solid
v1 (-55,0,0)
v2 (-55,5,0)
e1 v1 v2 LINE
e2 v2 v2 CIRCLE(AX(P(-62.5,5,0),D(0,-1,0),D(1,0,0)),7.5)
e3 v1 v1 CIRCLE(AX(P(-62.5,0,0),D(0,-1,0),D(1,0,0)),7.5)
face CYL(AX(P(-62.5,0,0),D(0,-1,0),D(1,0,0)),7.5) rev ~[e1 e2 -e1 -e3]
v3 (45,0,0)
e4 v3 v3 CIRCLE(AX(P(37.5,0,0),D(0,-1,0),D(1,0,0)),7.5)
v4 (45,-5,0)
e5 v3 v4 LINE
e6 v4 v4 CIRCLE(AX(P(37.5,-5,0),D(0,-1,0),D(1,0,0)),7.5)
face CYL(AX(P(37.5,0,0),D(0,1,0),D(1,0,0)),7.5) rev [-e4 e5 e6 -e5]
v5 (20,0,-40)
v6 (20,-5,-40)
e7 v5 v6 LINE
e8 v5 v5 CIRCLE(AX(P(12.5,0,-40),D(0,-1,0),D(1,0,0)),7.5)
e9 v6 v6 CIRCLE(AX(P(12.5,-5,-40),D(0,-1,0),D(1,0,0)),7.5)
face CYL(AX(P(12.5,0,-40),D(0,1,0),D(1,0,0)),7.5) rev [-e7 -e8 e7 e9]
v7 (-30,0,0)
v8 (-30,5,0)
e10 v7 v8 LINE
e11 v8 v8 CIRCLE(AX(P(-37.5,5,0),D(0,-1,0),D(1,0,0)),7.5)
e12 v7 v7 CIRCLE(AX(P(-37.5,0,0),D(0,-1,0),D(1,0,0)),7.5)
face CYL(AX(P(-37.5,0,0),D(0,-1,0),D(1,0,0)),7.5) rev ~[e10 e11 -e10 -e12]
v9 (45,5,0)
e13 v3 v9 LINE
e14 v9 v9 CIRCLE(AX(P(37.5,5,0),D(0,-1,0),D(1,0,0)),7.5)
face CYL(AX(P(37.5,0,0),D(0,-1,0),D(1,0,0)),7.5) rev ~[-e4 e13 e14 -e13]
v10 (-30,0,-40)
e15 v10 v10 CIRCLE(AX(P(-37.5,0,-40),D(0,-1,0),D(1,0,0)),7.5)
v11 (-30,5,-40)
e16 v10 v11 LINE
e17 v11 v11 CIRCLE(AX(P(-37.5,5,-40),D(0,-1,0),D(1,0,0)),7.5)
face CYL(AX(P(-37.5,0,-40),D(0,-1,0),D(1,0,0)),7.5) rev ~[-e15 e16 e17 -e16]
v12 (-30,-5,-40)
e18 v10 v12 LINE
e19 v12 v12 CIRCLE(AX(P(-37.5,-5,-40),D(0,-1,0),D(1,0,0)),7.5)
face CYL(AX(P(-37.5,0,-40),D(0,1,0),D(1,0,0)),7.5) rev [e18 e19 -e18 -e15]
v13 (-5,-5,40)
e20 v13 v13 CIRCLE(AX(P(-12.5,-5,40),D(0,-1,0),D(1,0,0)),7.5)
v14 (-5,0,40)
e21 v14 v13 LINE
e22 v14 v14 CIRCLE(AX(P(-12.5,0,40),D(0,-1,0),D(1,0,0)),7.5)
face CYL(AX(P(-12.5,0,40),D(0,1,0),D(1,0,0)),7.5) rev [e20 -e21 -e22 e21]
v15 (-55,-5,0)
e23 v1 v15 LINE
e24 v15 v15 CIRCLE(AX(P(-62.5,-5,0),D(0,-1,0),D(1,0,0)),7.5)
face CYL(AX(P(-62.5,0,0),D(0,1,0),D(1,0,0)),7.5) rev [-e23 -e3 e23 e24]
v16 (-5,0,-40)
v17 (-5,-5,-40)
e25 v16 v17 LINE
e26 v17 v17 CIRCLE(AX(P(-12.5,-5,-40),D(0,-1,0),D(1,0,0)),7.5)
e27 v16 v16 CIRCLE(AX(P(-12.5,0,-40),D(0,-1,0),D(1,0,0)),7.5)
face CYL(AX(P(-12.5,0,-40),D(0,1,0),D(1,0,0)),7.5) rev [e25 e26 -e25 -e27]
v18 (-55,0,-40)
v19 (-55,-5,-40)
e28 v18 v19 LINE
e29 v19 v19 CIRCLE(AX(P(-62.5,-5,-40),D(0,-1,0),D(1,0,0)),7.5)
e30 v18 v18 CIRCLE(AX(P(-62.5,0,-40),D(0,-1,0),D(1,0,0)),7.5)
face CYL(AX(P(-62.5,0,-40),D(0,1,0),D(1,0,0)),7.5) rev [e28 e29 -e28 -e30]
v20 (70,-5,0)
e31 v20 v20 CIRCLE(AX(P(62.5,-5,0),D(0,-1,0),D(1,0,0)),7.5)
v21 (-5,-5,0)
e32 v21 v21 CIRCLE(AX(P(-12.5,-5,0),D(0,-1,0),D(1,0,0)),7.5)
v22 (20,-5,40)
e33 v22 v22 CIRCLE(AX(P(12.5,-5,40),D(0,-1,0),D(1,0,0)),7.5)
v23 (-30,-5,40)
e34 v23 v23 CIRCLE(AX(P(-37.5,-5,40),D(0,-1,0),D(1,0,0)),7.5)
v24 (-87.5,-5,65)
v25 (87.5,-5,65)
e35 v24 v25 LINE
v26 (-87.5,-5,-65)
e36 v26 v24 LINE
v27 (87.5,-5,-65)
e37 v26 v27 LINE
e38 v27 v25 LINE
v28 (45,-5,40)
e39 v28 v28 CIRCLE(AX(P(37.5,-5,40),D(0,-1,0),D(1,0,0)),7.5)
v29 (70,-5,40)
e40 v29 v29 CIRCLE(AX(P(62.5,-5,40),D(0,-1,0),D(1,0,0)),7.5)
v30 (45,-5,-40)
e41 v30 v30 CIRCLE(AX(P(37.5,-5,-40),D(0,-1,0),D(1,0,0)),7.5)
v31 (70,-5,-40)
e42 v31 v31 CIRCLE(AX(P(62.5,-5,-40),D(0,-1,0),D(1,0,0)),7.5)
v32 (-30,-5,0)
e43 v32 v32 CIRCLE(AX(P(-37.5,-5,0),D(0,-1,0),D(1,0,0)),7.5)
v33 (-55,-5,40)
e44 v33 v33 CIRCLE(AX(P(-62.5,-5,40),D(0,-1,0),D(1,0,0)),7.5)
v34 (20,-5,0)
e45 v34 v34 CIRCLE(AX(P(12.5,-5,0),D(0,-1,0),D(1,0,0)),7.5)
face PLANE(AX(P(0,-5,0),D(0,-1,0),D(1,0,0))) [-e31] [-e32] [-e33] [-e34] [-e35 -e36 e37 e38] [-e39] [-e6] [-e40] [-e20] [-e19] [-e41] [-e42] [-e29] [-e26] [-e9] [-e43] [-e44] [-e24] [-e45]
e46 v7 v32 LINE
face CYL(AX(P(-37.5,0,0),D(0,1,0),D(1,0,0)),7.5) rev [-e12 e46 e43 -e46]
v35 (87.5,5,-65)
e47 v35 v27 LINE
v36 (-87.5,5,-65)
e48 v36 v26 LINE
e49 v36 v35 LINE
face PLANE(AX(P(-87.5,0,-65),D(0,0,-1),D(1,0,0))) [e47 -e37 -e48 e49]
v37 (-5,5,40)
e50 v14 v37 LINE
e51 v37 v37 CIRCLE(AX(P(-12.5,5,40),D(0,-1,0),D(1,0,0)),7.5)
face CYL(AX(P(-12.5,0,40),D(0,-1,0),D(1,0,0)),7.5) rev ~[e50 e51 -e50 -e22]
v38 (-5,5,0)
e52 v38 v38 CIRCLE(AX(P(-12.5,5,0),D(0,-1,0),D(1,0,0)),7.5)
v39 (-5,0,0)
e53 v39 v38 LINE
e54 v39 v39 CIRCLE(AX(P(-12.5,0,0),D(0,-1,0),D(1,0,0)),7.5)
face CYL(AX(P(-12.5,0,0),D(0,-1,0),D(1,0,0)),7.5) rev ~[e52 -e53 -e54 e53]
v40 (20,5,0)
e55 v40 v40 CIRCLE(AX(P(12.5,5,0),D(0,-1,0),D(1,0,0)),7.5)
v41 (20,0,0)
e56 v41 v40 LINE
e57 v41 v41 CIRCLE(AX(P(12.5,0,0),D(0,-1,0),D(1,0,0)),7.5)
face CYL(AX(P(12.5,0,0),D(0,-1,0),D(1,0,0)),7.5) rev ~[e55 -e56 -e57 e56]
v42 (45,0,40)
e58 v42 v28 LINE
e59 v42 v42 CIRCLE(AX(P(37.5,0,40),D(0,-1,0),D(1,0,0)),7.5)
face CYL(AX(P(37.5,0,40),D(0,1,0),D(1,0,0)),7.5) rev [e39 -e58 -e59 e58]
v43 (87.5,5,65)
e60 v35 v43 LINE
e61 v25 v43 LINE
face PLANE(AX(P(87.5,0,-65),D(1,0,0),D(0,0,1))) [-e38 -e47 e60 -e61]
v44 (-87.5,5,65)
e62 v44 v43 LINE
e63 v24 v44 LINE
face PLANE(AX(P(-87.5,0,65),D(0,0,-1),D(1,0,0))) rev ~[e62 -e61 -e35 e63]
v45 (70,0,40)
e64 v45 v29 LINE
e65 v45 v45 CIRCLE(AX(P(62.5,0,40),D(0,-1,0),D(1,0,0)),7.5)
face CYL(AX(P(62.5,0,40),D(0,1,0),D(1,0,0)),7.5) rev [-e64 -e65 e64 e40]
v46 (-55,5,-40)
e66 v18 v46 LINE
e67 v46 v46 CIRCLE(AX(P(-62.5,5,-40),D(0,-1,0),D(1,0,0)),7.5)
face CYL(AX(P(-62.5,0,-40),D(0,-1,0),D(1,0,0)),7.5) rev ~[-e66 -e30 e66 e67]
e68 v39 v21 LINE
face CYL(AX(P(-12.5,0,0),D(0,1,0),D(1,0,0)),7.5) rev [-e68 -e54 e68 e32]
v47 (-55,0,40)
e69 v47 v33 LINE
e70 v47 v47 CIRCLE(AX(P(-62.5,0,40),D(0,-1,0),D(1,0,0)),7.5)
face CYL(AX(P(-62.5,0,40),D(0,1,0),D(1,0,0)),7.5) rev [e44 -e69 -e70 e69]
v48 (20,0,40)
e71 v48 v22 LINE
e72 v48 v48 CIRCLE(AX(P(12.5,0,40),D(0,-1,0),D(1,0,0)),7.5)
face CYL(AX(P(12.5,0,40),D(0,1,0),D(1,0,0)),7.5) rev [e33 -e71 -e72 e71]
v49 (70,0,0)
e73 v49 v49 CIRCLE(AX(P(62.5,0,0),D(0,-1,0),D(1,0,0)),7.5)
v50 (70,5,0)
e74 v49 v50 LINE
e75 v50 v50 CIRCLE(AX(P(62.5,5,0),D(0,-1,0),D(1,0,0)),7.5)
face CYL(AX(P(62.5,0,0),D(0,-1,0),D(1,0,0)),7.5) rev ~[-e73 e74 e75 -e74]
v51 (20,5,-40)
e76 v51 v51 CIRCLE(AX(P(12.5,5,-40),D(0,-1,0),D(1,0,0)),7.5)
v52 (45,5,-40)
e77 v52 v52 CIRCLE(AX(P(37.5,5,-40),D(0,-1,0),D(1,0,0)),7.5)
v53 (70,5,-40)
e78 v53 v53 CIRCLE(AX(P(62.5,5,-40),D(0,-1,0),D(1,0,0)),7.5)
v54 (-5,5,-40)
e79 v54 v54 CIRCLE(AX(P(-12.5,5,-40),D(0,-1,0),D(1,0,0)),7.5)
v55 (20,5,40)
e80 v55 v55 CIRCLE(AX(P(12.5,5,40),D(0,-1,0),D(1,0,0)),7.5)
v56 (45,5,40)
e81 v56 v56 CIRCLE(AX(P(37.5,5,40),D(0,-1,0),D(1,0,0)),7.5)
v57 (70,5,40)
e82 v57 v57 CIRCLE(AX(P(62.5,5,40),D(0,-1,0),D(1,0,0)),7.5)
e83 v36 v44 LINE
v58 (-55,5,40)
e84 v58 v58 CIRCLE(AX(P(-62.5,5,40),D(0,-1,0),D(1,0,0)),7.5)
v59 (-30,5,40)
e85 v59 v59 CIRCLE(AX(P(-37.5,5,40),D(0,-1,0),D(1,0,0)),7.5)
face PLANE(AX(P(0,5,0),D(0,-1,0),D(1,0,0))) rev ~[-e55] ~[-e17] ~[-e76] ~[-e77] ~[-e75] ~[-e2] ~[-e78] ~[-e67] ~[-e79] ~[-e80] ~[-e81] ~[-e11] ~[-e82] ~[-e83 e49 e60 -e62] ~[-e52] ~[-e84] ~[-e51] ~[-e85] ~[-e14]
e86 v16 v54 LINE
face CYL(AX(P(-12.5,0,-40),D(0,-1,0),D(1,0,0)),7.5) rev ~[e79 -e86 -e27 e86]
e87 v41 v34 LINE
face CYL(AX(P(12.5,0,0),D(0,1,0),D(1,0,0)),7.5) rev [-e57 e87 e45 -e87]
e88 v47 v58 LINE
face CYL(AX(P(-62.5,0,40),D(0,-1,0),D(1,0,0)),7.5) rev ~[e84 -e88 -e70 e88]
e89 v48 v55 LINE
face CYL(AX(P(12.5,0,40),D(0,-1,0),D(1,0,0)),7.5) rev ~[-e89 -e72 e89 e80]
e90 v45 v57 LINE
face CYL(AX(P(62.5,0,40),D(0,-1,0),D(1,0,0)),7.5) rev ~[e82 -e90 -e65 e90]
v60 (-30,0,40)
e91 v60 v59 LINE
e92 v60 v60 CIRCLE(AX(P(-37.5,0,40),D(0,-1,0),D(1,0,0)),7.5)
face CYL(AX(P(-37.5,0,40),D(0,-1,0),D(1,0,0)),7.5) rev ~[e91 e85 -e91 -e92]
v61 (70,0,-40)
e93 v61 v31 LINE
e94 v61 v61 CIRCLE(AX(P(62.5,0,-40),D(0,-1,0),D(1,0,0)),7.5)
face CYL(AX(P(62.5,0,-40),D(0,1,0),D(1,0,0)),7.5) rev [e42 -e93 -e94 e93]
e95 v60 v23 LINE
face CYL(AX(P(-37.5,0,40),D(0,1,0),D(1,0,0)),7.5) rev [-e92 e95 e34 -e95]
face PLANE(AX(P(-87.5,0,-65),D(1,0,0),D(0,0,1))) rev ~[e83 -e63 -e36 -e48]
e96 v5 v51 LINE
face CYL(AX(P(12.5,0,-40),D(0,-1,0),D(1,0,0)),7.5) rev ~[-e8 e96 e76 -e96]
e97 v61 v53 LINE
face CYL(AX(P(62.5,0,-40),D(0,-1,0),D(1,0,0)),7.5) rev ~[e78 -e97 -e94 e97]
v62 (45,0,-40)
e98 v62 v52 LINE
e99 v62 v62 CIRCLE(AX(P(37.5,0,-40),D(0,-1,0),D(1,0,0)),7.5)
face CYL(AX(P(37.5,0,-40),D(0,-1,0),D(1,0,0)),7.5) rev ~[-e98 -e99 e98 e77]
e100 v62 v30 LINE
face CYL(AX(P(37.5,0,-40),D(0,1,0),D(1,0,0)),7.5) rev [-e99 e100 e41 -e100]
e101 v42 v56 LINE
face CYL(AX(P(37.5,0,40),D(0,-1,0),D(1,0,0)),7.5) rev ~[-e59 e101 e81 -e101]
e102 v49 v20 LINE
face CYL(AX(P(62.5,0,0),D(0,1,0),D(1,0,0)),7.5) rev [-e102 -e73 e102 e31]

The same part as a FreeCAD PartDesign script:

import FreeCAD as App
import Part
import Sketcher
Q = App.Units.Quantity


def add_polygon(sketch, points):
    """Adds a closed chain of lines whose ends are joined by coincident constraints."""
    first, n = sketch.GeometryCount, len(points)
    for a, b in zip(points, points[1:] + points[:1]):
        sketch.addGeometry(Part.LineSegment(App.Vector(*a, 0), App.Vector(*b, 0)), False)
    for i in range(n):
        sketch.addConstraint(Sketcher.Constraint("Coincident", first + i, 2, first + (i + 1) % n, 1))

doc = App.newDocument("Part")
params = doc.addObject("Spreadsheet::Sheet", "Params")
for row, (alias, value) in enumerate([
    ("sketch1_diameter", "15 mm"),
    ("sketch1_width", "175 mm"),
    ("sketch1_height", "130 mm"),
    ("pad1_length", "5 mm"),
    ("pad1_length2", "5 mm"),
], start=1):
    params.set(f"A{row}", alias)
    params.set(f"B{row}", "=" + value)
    params.setAlias(f"B{row}", alias)

body = doc.addObject("PartDesign::Body", "Body")

sketch1 = doc.addObject("Sketcher::SketchObject", "Sketch")
body.addObject(sketch1)
sketch1.AttachmentSupport = (doc.XZ_Plane, [""])
sketch1.MapMode = "FlatFace"
add_polygon(sketch1, [(-87.5, 65), (-87.5, -65), (87.5, -65), (87.5, 65)])
sketch1.addGeometry(Part.Circle(App.Vector(-62.5, -40, 0), App.Vector(0, 0, 1), 7.5), False)
sketch1.addGeometry(Part.Circle(App.Vector(-37.5, -40, 0), App.Vector(0, 0, 1), 7.5), False)
sketch1.addGeometry(Part.Circle(App.Vector(-12.5, -40, 0), App.Vector(0, 0, 1), 7.5), False)
sketch1.addGeometry(Part.Circle(App.Vector(12.5, -40, 0), App.Vector(0, 0, 1), 7.5), False)
sketch1.addGeometry(Part.Circle(App.Vector(37.5, -40, 0), App.Vector(0, 0, 1), 7.5), False)
sketch1.addGeometry(Part.Circle(App.Vector(62.5, -40, 0), App.Vector(0, 0, 1), 7.5), False)
sketch1.addGeometry(Part.Circle(App.Vector(-62.5, 0, 0), App.Vector(0, 0, 1), 7.5), False)
sketch1.addGeometry(Part.Circle(App.Vector(-37.5, 0, 0), App.Vector(0, 0, 1), 7.5), False)
sketch1.addGeometry(Part.Circle(App.Vector(-12.5, 0, 0), App.Vector(0, 0, 1), 7.5), False)
sketch1.addGeometry(Part.Circle(App.Vector(-62.5, 40, 0), App.Vector(0, 0, 1), 7.5), False)
sketch1.addGeometry(Part.Circle(App.Vector(-37.5, 40, 0), App.Vector(0, 0, 1), 7.5), False)
sketch1.addGeometry(Part.Circle(App.Vector(-12.5, 40, 0), App.Vector(0, 0, 1), 7.5), False)
sketch1.addGeometry(Part.Circle(App.Vector(12.5, 0, 0), App.Vector(0, 0, 1), 7.5), False)
sketch1.addGeometry(Part.Circle(App.Vector(37.5, 0, 0), App.Vector(0, 0, 1), 7.5), False)
sketch1.addGeometry(Part.Circle(App.Vector(62.5, 0, 0), App.Vector(0, 0, 1), 7.5), False)
sketch1.addGeometry(Part.Circle(App.Vector(12.5, 40, 0), App.Vector(0, 0, 1), 7.5), False)
sketch1.addGeometry(Part.Circle(App.Vector(37.5, 40, 0), App.Vector(0, 0, 1), 7.5), False)
sketch1.addGeometry(Part.Circle(App.Vector(62.5, 40, 0), App.Vector(0, 0, 1), 7.5), False)
sketch1.addConstraint(Sketcher.Constraint("Vertical", 0))
sketch1.addConstraint(Sketcher.Constraint("Horizontal", 1))
sketch1.addConstraint(Sketcher.Constraint("Vertical", 2))
sketch1.addConstraint(Sketcher.Constraint("Horizontal", 3))
sketch1.addConstraint(Sketcher.Constraint("Equal", 4, 5))
sketch1.addConstraint(Sketcher.Constraint("Equal", 5, 6))
sketch1.addConstraint(Sketcher.Constraint("Equal", 6, 7))
sketch1.addConstraint(Sketcher.Constraint("Equal", 7, 8))
sketch1.addConstraint(Sketcher.Constraint("Equal", 8, 9))
sketch1.addConstraint(Sketcher.Constraint("Equal", 9, 10))
sketch1.addConstraint(Sketcher.Constraint("Equal", 10, 11))
sketch1.addConstraint(Sketcher.Constraint("Equal", 11, 12))
sketch1.addConstraint(Sketcher.Constraint("Equal", 12, 13))
sketch1.addConstraint(Sketcher.Constraint("Equal", 13, 14))
sketch1.addConstraint(Sketcher.Constraint("Equal", 14, 15))
sketch1.addConstraint(Sketcher.Constraint("Equal", 15, 16))
sketch1.addConstraint(Sketcher.Constraint("Equal", 16, 17))
sketch1.addConstraint(Sketcher.Constraint("Equal", 17, 18))
sketch1.addConstraint(Sketcher.Constraint("Equal", 18, 19))
sketch1.addConstraint(Sketcher.Constraint("Equal", 19, 20))
sketch1.addConstraint(Sketcher.Constraint("Equal", 20, 21))
sketch1.addConstraint(Sketcher.Constraint("Symmetric", 9, 3, 13, 3, -1, 1))
sketch1.addConstraint(Sketcher.Constraint("Symmetric", 8, 3, 14, 3, -1, 1))
sketch1.addConstraint(Sketcher.Constraint("Symmetric", 7, 3, 15, 3, -1, 1))
sketch1.addConstraint(Sketcher.Constraint("Symmetric", 12, 3, 16, 3, -1, 1))
sketch1.addConstraint(Sketcher.Constraint("Symmetric", 11, 3, 17, 3, -1, 1))
sketch1.addConstraint(Sketcher.Constraint("Symmetric", 10, 3, 18, 3, -1, 1))
sketch1.addConstraint(Sketcher.Constraint("Symmetric", 6, 3, 19, 3, -1, 1))
sketch1.addConstraint(Sketcher.Constraint("Symmetric", 5, 3, 20, 3, -1, 1))
sketch1.addConstraint(Sketcher.Constraint("Symmetric", 4, 3, 21, 3, -1, 1))
sketch1.addConstraint(Sketcher.Constraint("Symmetric", 0, 2, 2, 2, -1, 1))
sketch1.addConstraint(Sketcher.Constraint("Symmetric", 6, 3, 7, 3, -2))
sketch1.addConstraint(Sketcher.Constraint("Symmetric", 5, 3, 8, 3, -2))
sketch1.addConstraint(Sketcher.Constraint("Symmetric", 4, 3, 9, 3, -2))
sketch1.addConstraint(Sketcher.Constraint("PointOnObject", 10, 3, -1))
sketch1.addConstraint(Sketcher.Constraint("PointOnObject", 11, 3, -1))
sketch1.addConstraint(Sketcher.Constraint("PointOnObject", 12, 3, -1))
sketch1.addConstraint(Sketcher.Constraint("Horizontal", 4, 3, 5, 3))
sketch1.addConstraint(Sketcher.Constraint("Horizontal", 5, 3, 6, 3))
sketch1.addConstraint(Sketcher.Constraint("Vertical", 4, 3, 10, 3))
sketch1.addConstraint(Sketcher.Constraint("Vertical", 5, 3, 11, 3))
sketch1.addConstraint(Sketcher.Constraint("Vertical", 6, 3, 12, 3))
sketch1.addConstraint(Sketcher.Constraint("Diameter", 4, Q("15 mm")))
sketch1.addConstraint(Sketcher.Constraint("DistanceX", 1, 1, 1, 2, Q("175 mm")))
sketch1.addConstraint(Sketcher.Constraint("DistanceY", 0, 2, 0, 1, Q("130 mm")))
sketch1.addConstraint(Sketcher.Constraint("DistanceY", 4, 3, -1, 1, Q("40 mm")))
sketch1.addConstraint(Sketcher.Constraint("DistanceX", 4, 3, 5, 3, Q("25 mm")))
sketch1.addConstraint(Sketcher.Constraint("DistanceX", 5, 3, 6, 3, Q("25 mm")))
sketch1.addConstraint(Sketcher.Constraint("DistanceX", 6, 3, 7, 3, Q("25 mm")))
sketch1.setExpression("Constraints[46]", "Params.sketch1_diameter")
sketch1.setExpression("Constraints[47]", "Params.sketch1_width")
sketch1.setExpression("Constraints[48]", "Params.sketch1_height")
pad1 = doc.addObject("PartDesign::Pad", "Pad")
body.addObject(pad1)
pad1.Profile = sketch1
pad1.Type = "TwoLengths"
pad1.setExpression("Length", "Params.pad1_length")
pad1.setExpression("Length2", "Params.pad1_length2")

doc.recompute()
